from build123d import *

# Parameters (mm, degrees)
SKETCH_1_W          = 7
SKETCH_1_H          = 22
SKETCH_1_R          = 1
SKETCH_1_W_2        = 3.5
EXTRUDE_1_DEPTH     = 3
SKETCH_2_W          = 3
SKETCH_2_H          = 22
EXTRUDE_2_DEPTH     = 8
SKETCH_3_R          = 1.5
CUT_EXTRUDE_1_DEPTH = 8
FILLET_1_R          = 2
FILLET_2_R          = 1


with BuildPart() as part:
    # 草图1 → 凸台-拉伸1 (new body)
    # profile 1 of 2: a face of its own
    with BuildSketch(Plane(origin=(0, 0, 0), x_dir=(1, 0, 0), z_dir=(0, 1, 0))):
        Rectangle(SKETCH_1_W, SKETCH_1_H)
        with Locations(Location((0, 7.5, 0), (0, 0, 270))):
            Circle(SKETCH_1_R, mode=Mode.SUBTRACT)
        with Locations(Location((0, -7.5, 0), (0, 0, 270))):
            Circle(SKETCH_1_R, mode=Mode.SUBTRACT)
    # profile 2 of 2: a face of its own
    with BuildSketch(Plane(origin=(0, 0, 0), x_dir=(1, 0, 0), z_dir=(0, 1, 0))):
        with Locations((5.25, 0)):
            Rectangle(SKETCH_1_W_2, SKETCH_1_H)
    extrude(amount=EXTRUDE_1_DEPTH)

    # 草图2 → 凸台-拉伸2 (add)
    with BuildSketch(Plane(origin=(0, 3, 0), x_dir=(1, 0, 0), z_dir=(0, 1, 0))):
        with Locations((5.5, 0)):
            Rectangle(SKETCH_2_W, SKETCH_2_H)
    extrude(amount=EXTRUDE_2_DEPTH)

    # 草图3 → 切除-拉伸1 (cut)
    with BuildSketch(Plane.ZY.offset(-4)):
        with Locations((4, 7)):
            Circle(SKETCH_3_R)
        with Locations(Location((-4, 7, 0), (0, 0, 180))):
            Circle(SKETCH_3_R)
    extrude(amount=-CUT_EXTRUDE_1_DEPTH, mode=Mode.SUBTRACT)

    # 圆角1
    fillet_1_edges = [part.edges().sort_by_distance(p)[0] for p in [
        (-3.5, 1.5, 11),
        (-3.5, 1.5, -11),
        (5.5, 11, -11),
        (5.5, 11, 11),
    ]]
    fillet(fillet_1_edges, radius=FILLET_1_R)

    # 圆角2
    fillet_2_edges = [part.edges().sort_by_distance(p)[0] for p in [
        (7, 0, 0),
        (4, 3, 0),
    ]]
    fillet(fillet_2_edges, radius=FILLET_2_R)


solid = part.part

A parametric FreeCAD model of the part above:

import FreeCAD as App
import Part
import Sketcher
from FreeCAD import Vector
Q = App.Units.Quantity


def edges_at(feature, points):
    """Names of the edges that pass closest to the given points."""
    edges = feature.Shape.Edges
    near = lambda p: min(range(len(edges)), key=lambda i: edges[i].distToShape(Part.Vertex(*p))[0])
    return sorted({f"Edge{near(p) + 1}" for p in points})


def add_polygon(sketch, points):
    """Adds a closed chain of lines whose ends are joined by coincident constraints."""
    first, n = sketch.GeometryCount, len(points)
    for a, b in zip(points, points[1:] + points[:1]):
        sketch.addGeometry(Part.LineSegment(App.Vector(*a, 0), App.Vector(*b, 0)), False)
    for i in range(n):
        sketch.addConstraint(Sketcher.Constraint("Coincident", first + i, 2, first + (i + 1) % n, 1))

doc = App.newDocument("Part")
body = doc.addObject("PartDesign::Body", "Body")

# Sketch on XZ plane
sketch1 = body.newObject("Sketcher::SketchObject", "Sketch")
sketch1.AttachmentSupport = (doc.getObject("XZ_Plane"), [""])
sketch1.MapMode = "FlatFace"
add_polygon(sketch1, [(-3.5, -11), (-3.5, 11), (7, 11), (7, -11)])  # lines 0-3
sketch1.addGeometry(Part.Circle(Vector(0, 7.5, 0), Vector(0, 0, 1), 1), False)  # 4
sketch1.addGeometry(Part.Circle(Vector(0, -7.5, 0), Vector(0, 0, 1), 1), False)  # 5
sketch1.addConstraint([
    Sketcher.Constraint("Vertical", 0),
    Sketcher.Constraint("Horizontal", 1),
    Sketcher.Constraint("Vertical", 2),
    Sketcher.Constraint("Horizontal", 3),
    Sketcher.Constraint("Equal", 4, 5),
    Sketcher.Constraint("Symmetric", 4, 3, 5, 3, -1, 1),
    Sketcher.Constraint("PointOnObject", 4, 3, -2),
    Sketcher.Constraint("Diameter", 4, Q("2 mm")),
    Sketcher.Constraint("DistanceY", 0, 1, 0, 2, Q("22 mm")),
    Sketcher.Constraint("DistanceX", 1, 1, 1, 2, Q("10.5 mm")),
    Sketcher.Constraint("DistanceY", -1, 1, 0, 2, Q("11 mm")),
    Sketcher.Constraint("DistanceX", -1, 1, 1, 2, Q("7 mm")),
    Sketcher.Constraint("DistanceY", 5, 3, 4, 3, Q("15 mm")),
])
pad1 = body.newObject("PartDesign::Pad", "Pad")
pad1.Profile = sketch1
pad1.Length = 3
pad1.Reversed = True

# Sketch on XZ plane
sketch2 = body.newObject("Sketcher::SketchObject", "Sketch001")
sketch2.AttachmentSupport = (doc.getObject("XZ_Plane"), [""])
sketch2.MapMode = "FlatFace"
sketch2.AttachmentOffset = App.Placement(Vector(0, 0, -3), App.Rotation())
add_polygon(sketch2, [(4, -11), (4, 11), (7, 11), (7, -11)])  # lines 0-3
sketch2.addConstraint([
    Sketcher.Constraint("Vertical", 0),
    Sketcher.Constraint("Horizontal", 1),
    Sketcher.Constraint("Vertical", 2),
    Sketcher.Constraint("Horizontal", 3),
    Sketcher.Constraint("DistanceX", 1, 1, 1, 2, Q("3 mm")),
    Sketcher.Constraint("DistanceY", 0, 1, 0, 2, Q("22 mm")),
    Sketcher.Constraint("DistanceX", -1, 1, 0, 2, Q("4 mm")),
    Sketcher.Constraint("DistanceY", -1, 1, 0, 2, Q("11 mm")),
])
pad2 = body.newObject("PartDesign::Pad", "Pad001")
pad2.Profile = sketch2
pad2.Length = 8
pad2.Reversed = True

# Sketch on YZ plane
sketch3 = body.newObject("Sketcher::SketchObject", "Sketch002")
sketch3.AttachmentSupport = (doc.getObject("YZ_Plane"), [""])
sketch3.MapMode = "FlatFace"
sketch3.AttachmentOffset = App.Placement(Vector(0, 0, 4), App.Rotation())
sketch3.addGeometry([
    Part.Circle(Vector(7, 4, 0), Vector(0, 0, 1), 1.5),
    Part.Circle(Vector(7, -4, 0), Vector(0, 0, 1), 1.5),
], False)
sketch3.addConstraint([
    Sketcher.Constraint("Equal", 0, 1),
    Sketcher.Constraint("Symmetric", 0, 3, 1, 3, -1),
    Sketcher.Constraint("Diameter", 0, Q("3 mm")),
    Sketcher.Constraint("DistanceX", -1, 1, 0, 3, Q("7 mm")),
    Sketcher.Constraint("DistanceY", -1, 1, 0, 3, Q("4 mm")),
])
pocket1 = body.newObject("PartDesign::Pocket", "Pocket")
pocket1.Profile = sketch3
pocket1.Length = 8
pocket1.Reversed = True
doc.recompute()

fillet = body.newObject("PartDesign::Fillet", "Fillet")
fillet.Base = (pocket1, edges_at(pocket1, [
    (-3.5, 1.5, 11),
    (-3.5, 1.5, -11),
    (5.5, 11, -11),
    (5.5, 11, 11),
]))
fillet.Radius = 2
doc.recompute()

fillet2 = body.newObject("PartDesign::Fillet", "Fillet001")
fillet2.Base = (fillet, edges_at(fillet, [(7, 0, 0), (4, 3, 0)]))
fillet2.Radius = 1

doc.recompute()
